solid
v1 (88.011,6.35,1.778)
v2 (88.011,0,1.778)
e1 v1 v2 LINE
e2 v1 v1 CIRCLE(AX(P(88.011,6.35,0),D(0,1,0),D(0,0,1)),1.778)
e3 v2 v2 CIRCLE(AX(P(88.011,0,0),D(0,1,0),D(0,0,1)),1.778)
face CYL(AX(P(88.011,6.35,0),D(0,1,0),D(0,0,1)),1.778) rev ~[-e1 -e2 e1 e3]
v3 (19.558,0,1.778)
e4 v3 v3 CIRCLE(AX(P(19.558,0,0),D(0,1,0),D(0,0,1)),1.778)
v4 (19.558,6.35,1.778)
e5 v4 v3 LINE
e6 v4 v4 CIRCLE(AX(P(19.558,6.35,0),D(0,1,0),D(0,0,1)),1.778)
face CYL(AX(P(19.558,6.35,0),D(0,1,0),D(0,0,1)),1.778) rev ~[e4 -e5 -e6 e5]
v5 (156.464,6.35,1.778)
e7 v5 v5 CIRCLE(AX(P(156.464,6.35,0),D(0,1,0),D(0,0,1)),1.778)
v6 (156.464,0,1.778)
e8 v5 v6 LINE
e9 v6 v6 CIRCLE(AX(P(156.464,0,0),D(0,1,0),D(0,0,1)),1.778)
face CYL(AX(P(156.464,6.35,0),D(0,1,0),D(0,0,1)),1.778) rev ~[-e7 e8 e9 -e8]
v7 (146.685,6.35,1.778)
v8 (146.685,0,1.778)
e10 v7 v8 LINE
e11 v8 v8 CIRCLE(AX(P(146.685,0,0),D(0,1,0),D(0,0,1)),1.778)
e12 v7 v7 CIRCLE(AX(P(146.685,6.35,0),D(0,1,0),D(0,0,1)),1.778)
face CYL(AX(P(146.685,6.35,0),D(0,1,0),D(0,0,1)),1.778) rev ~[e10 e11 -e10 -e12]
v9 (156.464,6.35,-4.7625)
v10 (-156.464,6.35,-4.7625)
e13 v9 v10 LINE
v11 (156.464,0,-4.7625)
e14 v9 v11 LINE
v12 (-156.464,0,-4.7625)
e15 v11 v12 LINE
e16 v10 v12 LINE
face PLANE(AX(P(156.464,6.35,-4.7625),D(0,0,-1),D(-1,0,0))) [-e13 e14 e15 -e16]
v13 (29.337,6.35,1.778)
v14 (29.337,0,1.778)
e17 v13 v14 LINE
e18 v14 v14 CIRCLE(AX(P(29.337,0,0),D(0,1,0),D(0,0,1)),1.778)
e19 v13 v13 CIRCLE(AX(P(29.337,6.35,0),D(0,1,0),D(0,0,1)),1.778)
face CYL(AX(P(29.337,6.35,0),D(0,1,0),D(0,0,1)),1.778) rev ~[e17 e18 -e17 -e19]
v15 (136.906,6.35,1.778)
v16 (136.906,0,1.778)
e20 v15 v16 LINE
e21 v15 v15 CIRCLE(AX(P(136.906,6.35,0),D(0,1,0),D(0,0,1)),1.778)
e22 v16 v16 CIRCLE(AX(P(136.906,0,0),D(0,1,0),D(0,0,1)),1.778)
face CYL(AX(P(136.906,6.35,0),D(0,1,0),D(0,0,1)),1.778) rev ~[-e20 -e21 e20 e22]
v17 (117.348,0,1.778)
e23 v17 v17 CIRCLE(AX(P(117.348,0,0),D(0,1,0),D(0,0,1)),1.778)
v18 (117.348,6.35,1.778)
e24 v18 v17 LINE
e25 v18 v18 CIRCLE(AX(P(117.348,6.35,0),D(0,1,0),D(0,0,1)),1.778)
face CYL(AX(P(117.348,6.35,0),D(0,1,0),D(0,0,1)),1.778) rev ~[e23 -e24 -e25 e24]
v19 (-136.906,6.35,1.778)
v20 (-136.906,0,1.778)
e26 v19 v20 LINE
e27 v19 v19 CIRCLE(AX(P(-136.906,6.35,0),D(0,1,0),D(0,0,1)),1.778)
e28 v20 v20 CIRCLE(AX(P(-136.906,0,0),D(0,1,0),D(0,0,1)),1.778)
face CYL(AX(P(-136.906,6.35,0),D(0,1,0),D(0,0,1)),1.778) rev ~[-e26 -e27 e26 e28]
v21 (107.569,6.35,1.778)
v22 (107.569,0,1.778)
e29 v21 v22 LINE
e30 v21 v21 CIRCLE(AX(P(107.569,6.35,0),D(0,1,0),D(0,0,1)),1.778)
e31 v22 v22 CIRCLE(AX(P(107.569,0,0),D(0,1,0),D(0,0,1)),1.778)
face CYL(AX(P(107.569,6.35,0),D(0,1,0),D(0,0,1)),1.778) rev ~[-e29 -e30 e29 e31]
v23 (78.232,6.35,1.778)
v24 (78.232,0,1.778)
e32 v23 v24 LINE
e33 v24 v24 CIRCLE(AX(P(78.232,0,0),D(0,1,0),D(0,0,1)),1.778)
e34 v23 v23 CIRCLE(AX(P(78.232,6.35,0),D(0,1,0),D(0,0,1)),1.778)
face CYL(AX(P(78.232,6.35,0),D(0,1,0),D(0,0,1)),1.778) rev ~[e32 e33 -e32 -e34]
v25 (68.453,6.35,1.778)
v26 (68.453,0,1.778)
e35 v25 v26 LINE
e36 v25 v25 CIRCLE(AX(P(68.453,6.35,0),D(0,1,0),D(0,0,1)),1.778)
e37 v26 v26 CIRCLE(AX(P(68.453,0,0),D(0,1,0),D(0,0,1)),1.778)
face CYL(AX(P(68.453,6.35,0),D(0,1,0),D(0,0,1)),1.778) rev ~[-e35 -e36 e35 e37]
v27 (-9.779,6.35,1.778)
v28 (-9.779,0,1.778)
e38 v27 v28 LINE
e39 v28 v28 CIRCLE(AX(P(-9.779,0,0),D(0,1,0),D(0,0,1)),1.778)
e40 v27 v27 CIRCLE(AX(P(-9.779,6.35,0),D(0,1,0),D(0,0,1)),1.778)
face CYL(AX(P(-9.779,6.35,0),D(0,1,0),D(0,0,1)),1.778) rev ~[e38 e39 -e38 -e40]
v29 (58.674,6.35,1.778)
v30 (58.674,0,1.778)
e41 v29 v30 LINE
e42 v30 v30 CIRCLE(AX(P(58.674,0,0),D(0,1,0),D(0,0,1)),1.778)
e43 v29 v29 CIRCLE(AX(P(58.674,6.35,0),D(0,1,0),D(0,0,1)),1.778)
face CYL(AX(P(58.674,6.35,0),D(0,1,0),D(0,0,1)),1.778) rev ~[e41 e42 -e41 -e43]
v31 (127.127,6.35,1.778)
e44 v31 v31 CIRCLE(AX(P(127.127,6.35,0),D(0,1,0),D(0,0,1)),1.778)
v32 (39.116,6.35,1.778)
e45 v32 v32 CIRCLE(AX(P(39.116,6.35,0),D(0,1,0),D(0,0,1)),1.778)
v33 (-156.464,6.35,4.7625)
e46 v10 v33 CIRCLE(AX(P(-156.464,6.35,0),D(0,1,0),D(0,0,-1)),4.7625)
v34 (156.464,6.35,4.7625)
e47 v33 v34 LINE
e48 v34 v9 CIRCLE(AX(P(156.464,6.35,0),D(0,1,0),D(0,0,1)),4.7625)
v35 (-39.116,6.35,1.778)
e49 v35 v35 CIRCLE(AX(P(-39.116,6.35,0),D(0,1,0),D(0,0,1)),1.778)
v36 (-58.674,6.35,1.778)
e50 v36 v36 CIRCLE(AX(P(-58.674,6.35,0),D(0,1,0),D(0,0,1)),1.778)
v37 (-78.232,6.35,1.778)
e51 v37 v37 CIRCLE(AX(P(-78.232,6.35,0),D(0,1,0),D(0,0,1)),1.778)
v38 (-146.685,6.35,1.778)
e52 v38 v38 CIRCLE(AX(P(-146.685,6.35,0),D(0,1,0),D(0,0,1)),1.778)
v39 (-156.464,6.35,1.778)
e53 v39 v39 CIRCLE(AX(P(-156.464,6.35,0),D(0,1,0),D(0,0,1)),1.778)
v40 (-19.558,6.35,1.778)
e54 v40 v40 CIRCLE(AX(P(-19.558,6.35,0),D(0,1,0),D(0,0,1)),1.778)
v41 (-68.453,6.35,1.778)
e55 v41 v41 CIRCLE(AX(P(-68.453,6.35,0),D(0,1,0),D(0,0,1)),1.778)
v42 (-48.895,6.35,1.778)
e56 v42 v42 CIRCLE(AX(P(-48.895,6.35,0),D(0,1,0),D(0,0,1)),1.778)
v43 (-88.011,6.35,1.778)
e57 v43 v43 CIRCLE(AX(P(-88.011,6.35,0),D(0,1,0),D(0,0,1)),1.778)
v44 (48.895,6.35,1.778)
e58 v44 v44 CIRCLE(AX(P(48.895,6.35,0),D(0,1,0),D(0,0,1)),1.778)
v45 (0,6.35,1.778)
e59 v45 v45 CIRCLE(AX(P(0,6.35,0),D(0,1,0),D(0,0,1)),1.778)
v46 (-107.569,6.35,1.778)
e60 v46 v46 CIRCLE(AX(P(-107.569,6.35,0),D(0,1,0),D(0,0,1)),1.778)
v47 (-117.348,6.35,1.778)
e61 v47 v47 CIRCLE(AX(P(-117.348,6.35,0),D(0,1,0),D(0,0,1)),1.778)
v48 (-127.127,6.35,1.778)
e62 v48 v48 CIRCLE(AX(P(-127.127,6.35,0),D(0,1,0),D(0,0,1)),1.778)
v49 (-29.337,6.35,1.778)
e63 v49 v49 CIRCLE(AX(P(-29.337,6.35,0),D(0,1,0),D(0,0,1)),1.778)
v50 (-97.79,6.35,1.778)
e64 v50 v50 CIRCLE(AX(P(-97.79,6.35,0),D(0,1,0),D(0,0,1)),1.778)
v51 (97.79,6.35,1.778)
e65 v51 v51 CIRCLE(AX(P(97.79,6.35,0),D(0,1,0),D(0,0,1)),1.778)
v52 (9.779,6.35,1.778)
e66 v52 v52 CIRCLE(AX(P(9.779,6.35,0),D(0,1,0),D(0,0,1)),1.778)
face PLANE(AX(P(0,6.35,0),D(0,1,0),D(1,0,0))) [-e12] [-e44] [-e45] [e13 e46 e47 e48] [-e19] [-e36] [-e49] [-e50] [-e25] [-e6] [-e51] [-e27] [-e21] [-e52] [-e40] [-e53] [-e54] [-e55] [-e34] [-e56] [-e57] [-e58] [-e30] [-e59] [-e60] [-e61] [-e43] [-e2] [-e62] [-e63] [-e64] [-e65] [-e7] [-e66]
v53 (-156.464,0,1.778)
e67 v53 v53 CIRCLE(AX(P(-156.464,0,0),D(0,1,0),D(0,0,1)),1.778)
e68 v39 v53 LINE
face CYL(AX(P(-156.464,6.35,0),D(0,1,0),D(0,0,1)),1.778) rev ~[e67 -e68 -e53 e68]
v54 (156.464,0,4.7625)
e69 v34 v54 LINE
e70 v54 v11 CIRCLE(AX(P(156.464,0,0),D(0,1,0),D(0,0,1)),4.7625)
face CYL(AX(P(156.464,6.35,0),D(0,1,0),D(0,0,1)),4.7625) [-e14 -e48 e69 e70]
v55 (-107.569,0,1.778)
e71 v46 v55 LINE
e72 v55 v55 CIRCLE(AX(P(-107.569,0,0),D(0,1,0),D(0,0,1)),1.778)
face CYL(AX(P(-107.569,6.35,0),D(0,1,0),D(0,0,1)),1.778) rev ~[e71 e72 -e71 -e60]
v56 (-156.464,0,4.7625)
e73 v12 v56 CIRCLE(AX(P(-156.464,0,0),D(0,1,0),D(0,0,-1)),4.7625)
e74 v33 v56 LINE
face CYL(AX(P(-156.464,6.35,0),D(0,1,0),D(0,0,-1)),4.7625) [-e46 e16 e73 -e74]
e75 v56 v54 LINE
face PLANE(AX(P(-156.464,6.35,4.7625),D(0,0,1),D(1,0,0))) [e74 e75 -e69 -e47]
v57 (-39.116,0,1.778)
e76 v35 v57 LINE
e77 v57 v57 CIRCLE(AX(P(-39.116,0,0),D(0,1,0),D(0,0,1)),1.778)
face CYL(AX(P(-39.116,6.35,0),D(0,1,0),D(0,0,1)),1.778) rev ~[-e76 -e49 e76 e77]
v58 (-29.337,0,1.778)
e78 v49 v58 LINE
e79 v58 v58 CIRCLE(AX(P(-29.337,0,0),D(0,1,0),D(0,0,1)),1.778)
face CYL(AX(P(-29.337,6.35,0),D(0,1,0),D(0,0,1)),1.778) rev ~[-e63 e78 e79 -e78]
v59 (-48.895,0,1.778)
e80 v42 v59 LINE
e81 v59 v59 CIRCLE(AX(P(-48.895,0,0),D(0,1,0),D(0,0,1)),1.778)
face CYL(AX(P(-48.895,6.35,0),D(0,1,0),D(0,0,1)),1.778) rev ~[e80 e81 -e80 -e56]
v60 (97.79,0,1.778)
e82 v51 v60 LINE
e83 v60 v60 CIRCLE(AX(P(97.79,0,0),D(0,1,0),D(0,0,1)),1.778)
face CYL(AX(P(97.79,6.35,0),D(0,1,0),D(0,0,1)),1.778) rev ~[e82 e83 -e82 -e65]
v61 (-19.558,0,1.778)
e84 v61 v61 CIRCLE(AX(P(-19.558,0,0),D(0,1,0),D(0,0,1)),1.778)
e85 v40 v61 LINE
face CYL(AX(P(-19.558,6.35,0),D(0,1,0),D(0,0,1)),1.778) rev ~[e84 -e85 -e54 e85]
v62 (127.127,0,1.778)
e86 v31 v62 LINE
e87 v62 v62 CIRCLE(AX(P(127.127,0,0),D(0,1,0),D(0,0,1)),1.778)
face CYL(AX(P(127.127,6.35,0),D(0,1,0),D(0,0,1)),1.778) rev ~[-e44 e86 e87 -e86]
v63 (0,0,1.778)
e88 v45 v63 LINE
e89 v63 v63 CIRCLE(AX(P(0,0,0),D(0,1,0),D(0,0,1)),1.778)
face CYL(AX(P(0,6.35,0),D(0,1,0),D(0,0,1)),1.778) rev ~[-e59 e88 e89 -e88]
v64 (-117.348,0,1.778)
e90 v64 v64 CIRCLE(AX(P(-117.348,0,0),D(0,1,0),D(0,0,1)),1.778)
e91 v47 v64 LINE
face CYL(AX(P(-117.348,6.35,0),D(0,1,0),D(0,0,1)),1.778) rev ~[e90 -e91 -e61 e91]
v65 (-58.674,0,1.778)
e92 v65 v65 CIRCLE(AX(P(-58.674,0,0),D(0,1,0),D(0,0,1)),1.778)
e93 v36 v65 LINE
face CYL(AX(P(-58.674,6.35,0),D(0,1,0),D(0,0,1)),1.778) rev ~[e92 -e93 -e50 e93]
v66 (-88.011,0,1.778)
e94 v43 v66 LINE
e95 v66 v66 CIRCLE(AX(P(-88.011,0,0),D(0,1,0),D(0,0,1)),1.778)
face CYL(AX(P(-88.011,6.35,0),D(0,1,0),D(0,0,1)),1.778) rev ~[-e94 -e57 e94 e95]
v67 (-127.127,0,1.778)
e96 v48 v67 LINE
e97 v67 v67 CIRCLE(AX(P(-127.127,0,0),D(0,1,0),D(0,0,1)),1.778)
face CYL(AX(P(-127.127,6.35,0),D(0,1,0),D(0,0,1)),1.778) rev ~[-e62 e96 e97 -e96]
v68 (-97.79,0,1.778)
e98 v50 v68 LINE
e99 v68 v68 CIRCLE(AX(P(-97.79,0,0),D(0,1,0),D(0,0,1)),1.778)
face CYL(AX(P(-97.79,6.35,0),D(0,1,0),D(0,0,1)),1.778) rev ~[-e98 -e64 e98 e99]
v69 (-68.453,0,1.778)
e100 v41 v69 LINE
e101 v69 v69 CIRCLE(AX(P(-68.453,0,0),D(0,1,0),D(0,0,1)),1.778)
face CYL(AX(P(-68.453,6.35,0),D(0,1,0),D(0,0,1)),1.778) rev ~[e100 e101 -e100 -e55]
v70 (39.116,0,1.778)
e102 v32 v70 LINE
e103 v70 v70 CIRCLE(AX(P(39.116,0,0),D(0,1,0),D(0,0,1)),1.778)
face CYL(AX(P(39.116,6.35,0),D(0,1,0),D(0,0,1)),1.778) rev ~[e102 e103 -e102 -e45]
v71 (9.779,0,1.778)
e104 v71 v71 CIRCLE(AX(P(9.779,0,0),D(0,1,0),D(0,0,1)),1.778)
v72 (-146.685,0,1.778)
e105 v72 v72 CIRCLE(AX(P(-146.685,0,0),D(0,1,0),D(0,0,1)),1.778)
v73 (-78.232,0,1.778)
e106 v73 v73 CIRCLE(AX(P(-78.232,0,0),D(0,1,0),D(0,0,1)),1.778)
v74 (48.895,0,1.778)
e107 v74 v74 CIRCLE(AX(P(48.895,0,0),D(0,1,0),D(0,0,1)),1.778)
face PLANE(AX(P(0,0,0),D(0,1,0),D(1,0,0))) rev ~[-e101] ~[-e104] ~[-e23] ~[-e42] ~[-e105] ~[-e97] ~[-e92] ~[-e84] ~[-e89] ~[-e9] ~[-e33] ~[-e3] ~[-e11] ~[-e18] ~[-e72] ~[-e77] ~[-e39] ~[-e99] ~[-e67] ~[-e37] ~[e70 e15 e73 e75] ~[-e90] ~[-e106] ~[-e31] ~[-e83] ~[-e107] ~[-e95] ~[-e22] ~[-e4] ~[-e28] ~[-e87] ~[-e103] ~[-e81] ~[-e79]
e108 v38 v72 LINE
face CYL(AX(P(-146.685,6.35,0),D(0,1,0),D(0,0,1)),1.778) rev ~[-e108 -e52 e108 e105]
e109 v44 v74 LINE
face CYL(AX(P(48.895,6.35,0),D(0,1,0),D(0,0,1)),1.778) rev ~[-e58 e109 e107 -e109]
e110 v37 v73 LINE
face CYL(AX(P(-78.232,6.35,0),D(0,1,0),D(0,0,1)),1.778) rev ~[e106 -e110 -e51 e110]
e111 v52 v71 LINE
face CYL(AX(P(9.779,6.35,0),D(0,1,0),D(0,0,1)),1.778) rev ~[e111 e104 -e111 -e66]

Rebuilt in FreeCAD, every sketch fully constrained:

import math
import FreeCAD as App
import Part
import Sketcher
from FreeCAD import Vector
Q = App.Units.Quantity

doc = App.newDocument("Part")
body = doc.addObject("PartDesign::Body", "Body")

sketch1 = body.newObject("Sketcher::SketchObject", "Sketch")
sketch1.AttachmentSupport = (doc.getObject("XZ_Plane"), [""])
sketch1.MapMode = "FlatFace"
sketch1.AttachmentOffset = App.Placement(Vector(0, 0, -0.25 * 25.4), App.Rotation())
sketch1.addGeometry([
    Part.LineSegment(Vector(156.5, -4.8, 0), Vector(-156.5, -4.8, 0)),
    Part.ArcOfCircle(Part.Circle(Vector(-156.5, 0, 0), Vector(0, 0, 1), 4.8), math.radians(90), math.radians(270)),
    Part.LineSegment(Vector(-156.5, 4.8, 0), Vector(156.5, 4.8, 0)),
    Part.ArcOfCircle(Part.Circle(Vector(156.5, 0, 0), Vector(0, 0, 1), 4.8), math.radians(-90), math.radians(90)),
    Part.Circle(Vector(-156.5, 0, 0), Vector(0, 0, 1), 1.8),
    Part.Circle(Vector(-146.7, 0, 0), Vector(0, 0, 1), 1.8),
    Part.Circle(Vector(-136.9, 0, 0), Vector(0, 0, 1), 1.8),
    Part.Circle(Vector(-127.1, 0, 0), Vector(0, 0, 1), 1.8),
    Part.Circle(Vector(-117.3, 0, 0), Vector(0, 0, 1), 1.8),
    Part.Circle(Vector(-107.6, 0, 0), Vector(0, 0, 1), 1.8),
    Part.Circle(Vector(-97.8, 0, 0), Vector(0, 0, 1), 1.8),
    Part.Circle(Vector(-88, 0, 0), Vector(0, 0, 1), 1.8),
    Part.Circle(Vector(-78.2, 0, 0), Vector(0, 0, 1), 1.8),
    Part.Circle(Vector(-68.5, 0, 0), Vector(0, 0, 1), 1.8),
    Part.Circle(Vector(-58.7, 0, 0), Vector(0, 0, 1), 1.8),
    Part.Circle(Vector(-48.9, 0, 0), Vector(0, 0, 1), 1.8),
    Part.Circle(Vector(-39.1, 0, 0), Vector(0, 0, 1), 1.8),
    Part.Circle(Vector(-29.3, 0, 0), Vector(0, 0, 1), 1.8),
    Part.Circle(Vector(-19.6, 0, 0), Vector(0, 0, 1), 1.8),
    Part.Circle(Vector(-9.8, 0, 0), Vector(0, 0, 1), 1.8),
    Part.Circle(Vector(0, 0, 0), Vector(0, 0, 1), 1.8),
    Part.Circle(Vector(9.8, 0, 0), Vector(0, 0, 1), 1.8),
    Part.Circle(Vector(19.6, 0, 0), Vector(0, 0, 1), 1.8),
    Part.Circle(Vector(29.3, 0, 0), Vector(0, 0, 1), 1.8),
    Part.Circle(Vector(39.1, 0, 0), Vector(0, 0, 1), 1.8),
    Part.Circle(Vector(48.9, 0, 0), Vector(0, 0, 1), 1.8),
    Part.Circle(Vector(58.7, 0, 0), Vector(0, 0, 1), 1.8),
    Part.Circle(Vector(68.5, 0, 0), Vector(0, 0, 1), 1.8),
    Part.Circle(Vector(78.2, 0, 0), Vector(0, 0, 1), 1.8),
    Part.Circle(Vector(88, 0, 0), Vector(0, 0, 1), 1.8),
    Part.Circle(Vector(97.8, 0, 0), Vector(0, 0, 1), 1.8),
    Part.Circle(Vector(107.6, 0, 0), Vector(0, 0, 1), 1.8),
    Part.Circle(Vector(117.3, 0, 0), Vector(0, 0, 1), 1.8),
    Part.Circle(Vector(127.1, 0, 0), Vector(0, 0, 1), 1.8),
    Part.Circle(Vector(136.9, 0, 0), Vector(0, 0, 1), 1.8),
    Part.Circle(Vector(146.7, 0, 0), Vector(0, 0, 1), 1.8),
    Part.Circle(Vector(156.5, 0, 0), Vector(0, 0, 1), 1.8),
], False)
sketch1.addConstraint([
    Sketcher.Constraint("Tangent", 0, 2, 1, 2),
    Sketcher.Constraint("Tangent", 1, 1, 2, 1),
    Sketcher.Constraint("Tangent", 2, 2, 3, 2),
    Sketcher.Constraint("Tangent", 3, 1, 0, 1),
    Sketcher.Constraint("Horizontal", 0),
    Sketcher.Constraint("Horizontal", 2),
    Sketcher.Constraint("Coincident", 20, 3, -1, 1),
    Sketcher.Constraint("Coincident", 4, 3, 1, 3),
    Sketcher.Constraint("Coincident", 36, 3, 3, 3),
    Sketcher.Constraint("Equal", 4, 5),
    Sketcher.Constraint("Equal", 5, 6),
    Sketcher.Constraint("Equal", 6, 7),
    Sketcher.Constraint("Equal", 7, 8),
    Sketcher.Constraint("Equal", 8, 9),
    Sketcher.Constraint("Equal", 9, 10),
    Sketcher.Constraint("Equal", 10, 11),
    Sketcher.Constraint("Equal", 11, 12),
    Sketcher.Constraint("Equal", 12, 13),
    Sketcher.Constraint("Equal", 13, 14),
    Sketcher.Constraint("Equal", 14, 15),
    Sketcher.Constraint("Equal", 15, 16),
    Sketcher.Constraint("Equal", 16, 17),
    Sketcher.Constraint("Equal", 17, 18),
    Sketcher.Constraint("Equal", 18, 19),
    Sketcher.Constraint("Equal", 19, 20),
    Sketcher.Constraint("Equal", 20, 21),
    Sketcher.Constraint("Equal", 21, 22),
    Sketcher.Constraint("Equal", 22, 23),
    Sketcher.Constraint("Equal", 23, 24),
    Sketcher.Constraint("Equal", 24, 25),
    Sketcher.Constraint("Equal", 25, 26),
    Sketcher.Constraint("Equal", 26, 27),
    Sketcher.Constraint("Equal", 27, 28),
    Sketcher.Constraint("Equal", 28, 29),
    Sketcher.Constraint("Equal", 29, 30),
    Sketcher.Constraint("Equal", 30, 31),
    Sketcher.Constraint("Equal", 31, 32),
    Sketcher.Constraint("Equal", 32, 33),
    Sketcher.Constraint("Equal", 33, 34),
    Sketcher.Constraint("Equal", 34, 35),
    Sketcher.Constraint("Equal", 35, 36),
    Sketcher.Constraint("Symmetric", 1, 3, 3, 3, -1, 1),
    Sketcher.Constraint("Symmetric", 19, 3, 21, 3, -1, 1),
    Sketcher.Constraint("Symmetric", 18, 3, 22, 3, -1, 1),
    Sketcher.Constraint("Symmetric", 17, 3, 23, 3, -1, 1),
    Sketcher.Constraint("Symmetric", 16, 3, 24, 3, -1, 1),
    Sketcher.Constraint("Symmetric", 15, 3, 25, 3, -1, 1),
    Sketcher.Constraint("Symmetric", 14, 3, 26, 3, -1, 1),
    Sketcher.Constraint("Symmetric", 13, 3, 27, 3, -1, 1),
    Sketcher.Constraint("Symmetric", 12, 3, 28, 3, -1, 1),
    Sketcher.Constraint("Symmetric", 11, 3, 29, 3, -1, 1),
    Sketcher.Constraint("Symmetric", 10, 3, 30, 3, -1, 1),
    Sketcher.Constraint("Symmetric", 9, 3, 31, 3, -1, 1),
    Sketcher.Constraint("Symmetric", 8, 3, 32, 3, -1, 1),
    Sketcher.Constraint("Symmetric", 7, 3, 33, 3, -1, 1),
    Sketcher.Constraint("Symmetric", 6, 3, 34, 3, -1, 1),
    Sketcher.Constraint("Symmetric", 5, 3, 35, 3, -1, 1),
    Sketcher.Constraint("PointOnObject", 5, 3, -1),
    Sketcher.Constraint("PointOnObject", 6, 3, -1),
    Sketcher.Constraint("PointOnObject", 7, 3, -1),
    Sketcher.Constraint("PointOnObject", 8, 3, -1),
    Sketcher.Constraint("PointOnObject", 9, 3, -1),
    Sketcher.Constraint("PointOnObject", 10, 3, -1),
    Sketcher.Constraint("PointOnObject", 11, 3, -1),
    Sketcher.Constraint("PointOnObject", 12, 3, -1),
    Sketcher.Constraint("PointOnObject", 13, 3, -1),
    Sketcher.Constraint("PointOnObject", 14, 3, -1),
    Sketcher.Constraint("PointOnObject", 15, 3, -1),
    Sketcher.Constraint("PointOnObject", 16, 3, -1),
    Sketcher.Constraint("PointOnObject", 17, 3, -1),
    Sketcher.Constraint("PointOnObject", 18, 3, -1),
    Sketcher.Constraint("PointOnObject", 19, 3, -1),
    Sketcher.Constraint("Diameter", 4, Q("0.14 in")),
    Sketcher.Constraint("Radius", 1, Q("0.1875 in")),
    Sketcher.Constraint("DistanceX", 0, 2, 0, 1, Q("12.32 in")),
    Sketcher.Constraint("DistanceX", 6, 3, -1, 1, Q("5.39 in")),
    Sketcher.Constraint("DistanceX", 8, 3, -1, 1, Q("4.62 in")),
    Sketcher.Constraint("DistanceX", 10, 3, -1, 1, Q("3.85 in")),
    Sketcher.Constraint("DistanceX", 12, 3, -1, 1, Q("3.08 in")),
    Sketcher.Constraint("DistanceX", 14, 3, -1, 1, Q("2.31 in")),
    Sketcher.Constraint("DistanceX", 16, 3, -1, 1, Q("1.54 in")),
    Sketcher.Constraint("DistanceX", 18, 3, -1, 1, Q("0.77 in")),
    Sketcher.Constraint("DistanceX", 5, 3, 7, 3, Q("0.77 in")),
    Sketcher.Constraint("DistanceX", 7, 3, 9, 3, Q("0.77 in")),
    Sketcher.Constraint("DistanceX", 9, 3, 11, 3, Q("0.77 in")),
    Sketcher.Constraint("DistanceX", 11, 3, 13, 3, Q("0.77 in")),
    Sketcher.Constraint("DistanceX", 13, 3, 15, 3, Q("0.77 in")),
    Sketcher.Constraint("DistanceX", 15, 3, 17, 3, Q("0.77 in")),
    Sketcher.Constraint("DistanceX", 17, 3, 19, 3, Q("0.77 in")),
    Sketcher.Constraint("DistanceX", 19, 3, 21, 3, Q("0.77 in")),
])
pad1 = body.newObject("PartDesign::Pad", "Pad")
pad1.Profile = sketch1
pad1.Length = Q("0.25 in")

doc.recompute()
